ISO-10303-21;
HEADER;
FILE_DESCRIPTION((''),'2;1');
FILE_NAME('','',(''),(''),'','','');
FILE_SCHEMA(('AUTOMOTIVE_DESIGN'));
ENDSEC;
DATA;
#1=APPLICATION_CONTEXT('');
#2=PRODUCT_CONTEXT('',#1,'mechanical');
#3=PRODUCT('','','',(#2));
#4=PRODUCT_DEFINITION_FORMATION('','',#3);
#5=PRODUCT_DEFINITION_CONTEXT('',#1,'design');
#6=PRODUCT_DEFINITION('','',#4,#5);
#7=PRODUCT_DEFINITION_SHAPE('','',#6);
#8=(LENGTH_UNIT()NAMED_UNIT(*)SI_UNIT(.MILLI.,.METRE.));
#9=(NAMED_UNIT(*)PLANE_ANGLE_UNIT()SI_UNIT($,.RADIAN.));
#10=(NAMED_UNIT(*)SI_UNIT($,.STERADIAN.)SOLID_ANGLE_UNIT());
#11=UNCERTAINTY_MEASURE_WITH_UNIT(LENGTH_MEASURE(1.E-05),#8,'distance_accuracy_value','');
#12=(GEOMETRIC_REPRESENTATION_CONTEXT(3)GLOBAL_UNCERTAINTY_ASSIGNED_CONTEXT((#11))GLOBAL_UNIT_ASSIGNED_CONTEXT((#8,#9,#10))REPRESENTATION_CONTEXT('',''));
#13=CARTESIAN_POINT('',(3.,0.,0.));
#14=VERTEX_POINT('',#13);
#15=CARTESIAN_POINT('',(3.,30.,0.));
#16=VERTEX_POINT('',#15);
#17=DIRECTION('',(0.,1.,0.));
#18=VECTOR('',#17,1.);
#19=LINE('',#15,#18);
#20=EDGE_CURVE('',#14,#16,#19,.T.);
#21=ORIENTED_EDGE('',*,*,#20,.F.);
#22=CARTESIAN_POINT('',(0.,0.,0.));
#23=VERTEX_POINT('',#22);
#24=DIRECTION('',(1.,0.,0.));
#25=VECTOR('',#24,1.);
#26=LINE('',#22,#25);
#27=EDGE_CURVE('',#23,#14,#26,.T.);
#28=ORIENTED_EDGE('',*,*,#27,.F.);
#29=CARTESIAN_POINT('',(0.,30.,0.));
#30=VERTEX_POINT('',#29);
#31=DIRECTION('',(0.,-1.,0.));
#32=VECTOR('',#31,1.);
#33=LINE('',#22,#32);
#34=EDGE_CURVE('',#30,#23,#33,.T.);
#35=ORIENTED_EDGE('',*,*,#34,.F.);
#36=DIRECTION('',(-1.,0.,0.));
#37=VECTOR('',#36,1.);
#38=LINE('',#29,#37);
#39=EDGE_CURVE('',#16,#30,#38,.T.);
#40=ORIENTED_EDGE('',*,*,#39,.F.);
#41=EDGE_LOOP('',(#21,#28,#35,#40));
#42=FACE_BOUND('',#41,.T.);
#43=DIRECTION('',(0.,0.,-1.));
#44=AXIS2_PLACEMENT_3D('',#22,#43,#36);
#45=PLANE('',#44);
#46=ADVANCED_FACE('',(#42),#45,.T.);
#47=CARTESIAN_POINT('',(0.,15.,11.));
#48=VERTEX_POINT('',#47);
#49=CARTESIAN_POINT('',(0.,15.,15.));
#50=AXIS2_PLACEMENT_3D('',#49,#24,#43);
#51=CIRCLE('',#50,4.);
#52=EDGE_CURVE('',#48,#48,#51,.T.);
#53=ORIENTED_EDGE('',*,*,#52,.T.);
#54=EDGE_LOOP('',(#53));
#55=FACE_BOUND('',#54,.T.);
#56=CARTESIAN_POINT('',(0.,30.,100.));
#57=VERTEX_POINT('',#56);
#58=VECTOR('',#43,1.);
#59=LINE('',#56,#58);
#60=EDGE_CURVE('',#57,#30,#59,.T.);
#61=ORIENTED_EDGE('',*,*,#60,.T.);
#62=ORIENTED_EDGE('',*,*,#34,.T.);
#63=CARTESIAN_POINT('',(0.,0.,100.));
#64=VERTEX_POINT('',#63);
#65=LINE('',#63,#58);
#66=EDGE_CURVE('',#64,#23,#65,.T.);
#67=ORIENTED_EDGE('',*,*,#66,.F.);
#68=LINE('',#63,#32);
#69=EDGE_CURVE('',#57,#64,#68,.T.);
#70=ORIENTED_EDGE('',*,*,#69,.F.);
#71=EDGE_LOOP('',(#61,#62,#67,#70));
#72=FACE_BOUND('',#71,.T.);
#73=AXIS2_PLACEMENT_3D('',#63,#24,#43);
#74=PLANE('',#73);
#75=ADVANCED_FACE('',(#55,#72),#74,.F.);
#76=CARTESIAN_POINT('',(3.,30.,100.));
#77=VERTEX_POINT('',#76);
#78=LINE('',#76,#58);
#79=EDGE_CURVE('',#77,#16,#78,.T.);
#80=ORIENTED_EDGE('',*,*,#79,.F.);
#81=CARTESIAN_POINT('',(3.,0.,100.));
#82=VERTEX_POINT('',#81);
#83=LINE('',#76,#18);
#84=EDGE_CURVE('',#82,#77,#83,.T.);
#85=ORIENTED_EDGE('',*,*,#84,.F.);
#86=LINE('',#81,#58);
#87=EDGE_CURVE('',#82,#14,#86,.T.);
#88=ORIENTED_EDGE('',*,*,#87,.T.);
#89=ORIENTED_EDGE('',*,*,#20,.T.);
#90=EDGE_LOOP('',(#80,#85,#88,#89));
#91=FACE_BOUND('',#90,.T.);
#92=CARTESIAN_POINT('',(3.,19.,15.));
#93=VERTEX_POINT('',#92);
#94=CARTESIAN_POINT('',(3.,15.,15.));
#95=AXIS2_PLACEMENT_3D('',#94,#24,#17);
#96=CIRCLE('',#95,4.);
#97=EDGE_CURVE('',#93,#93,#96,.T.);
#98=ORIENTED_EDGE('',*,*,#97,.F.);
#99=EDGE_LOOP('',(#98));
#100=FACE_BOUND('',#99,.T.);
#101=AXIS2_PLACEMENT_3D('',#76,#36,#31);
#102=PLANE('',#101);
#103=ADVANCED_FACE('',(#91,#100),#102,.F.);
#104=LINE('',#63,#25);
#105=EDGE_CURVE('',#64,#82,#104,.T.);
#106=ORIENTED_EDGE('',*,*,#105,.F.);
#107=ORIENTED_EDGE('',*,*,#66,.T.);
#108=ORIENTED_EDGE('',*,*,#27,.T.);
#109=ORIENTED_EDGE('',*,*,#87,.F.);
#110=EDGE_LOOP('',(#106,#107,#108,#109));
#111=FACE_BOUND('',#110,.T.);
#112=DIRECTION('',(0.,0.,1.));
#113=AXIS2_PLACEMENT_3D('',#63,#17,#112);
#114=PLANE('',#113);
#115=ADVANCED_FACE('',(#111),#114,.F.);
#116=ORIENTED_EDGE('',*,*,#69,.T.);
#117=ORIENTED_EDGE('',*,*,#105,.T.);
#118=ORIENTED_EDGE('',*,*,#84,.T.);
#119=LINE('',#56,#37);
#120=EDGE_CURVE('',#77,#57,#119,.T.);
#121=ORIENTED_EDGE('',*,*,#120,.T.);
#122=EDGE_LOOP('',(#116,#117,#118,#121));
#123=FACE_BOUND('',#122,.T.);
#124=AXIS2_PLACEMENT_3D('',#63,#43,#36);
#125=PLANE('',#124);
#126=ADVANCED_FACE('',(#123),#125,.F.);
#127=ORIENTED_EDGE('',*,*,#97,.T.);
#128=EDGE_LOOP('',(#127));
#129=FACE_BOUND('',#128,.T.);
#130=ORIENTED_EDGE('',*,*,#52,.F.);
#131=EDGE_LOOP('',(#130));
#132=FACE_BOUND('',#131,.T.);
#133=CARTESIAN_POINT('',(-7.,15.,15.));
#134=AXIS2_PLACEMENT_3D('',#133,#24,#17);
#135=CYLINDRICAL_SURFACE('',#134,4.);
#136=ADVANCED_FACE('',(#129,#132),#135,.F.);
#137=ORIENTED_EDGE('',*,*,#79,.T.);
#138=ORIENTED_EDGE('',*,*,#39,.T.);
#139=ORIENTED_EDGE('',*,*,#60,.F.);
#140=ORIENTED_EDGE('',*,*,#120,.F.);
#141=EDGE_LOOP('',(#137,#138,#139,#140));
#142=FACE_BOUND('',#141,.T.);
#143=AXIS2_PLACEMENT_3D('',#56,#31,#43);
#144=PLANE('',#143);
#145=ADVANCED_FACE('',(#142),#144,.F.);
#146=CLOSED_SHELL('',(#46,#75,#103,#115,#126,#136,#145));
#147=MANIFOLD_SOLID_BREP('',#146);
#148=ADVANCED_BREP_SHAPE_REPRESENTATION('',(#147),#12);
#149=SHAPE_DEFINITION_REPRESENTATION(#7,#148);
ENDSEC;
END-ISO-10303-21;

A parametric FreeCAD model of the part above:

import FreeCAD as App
import Part
import Sketcher
from FreeCAD import Vector
Q = App.Units.Quantity

doc = App.newDocument("Part")
body = doc.addObject("PartDesign::Body", "Body")

# Sketch on XY plane
sketch1 = body.newObject("Sketcher::SketchObject", "Sketch")
sketch1.AttachmentSupport = (doc.getObject("XY_Plane"), [""])
sketch1.MapMode = "FlatFace"
sketch1.addGeometry([
    Part.LineSegment(Vector(0, 30, 0), Vector(0, 0, 0)),
    Part.LineSegment(Vector(0, 0, 0), Vector(3, 0, 0)),
    Part.LineSegment(Vector(3, 0, 0), Vector(3, 30, 0)),
    Part.LineSegment(Vector(3, 30, 0), Vector(0, 30, 0)),
], False)
sketch1.addConstraint([
    Sketcher.Constraint("Coincident", 0, 2, 1, 1),
    Sketcher.Constraint("Coincident", 1, 2, 2, 1),
    Sketcher.Constraint("Coincident", 2, 2, 3, 1),
    Sketcher.Constraint("Coincident", 3, 2, 0, 1),
    Sketcher.Constraint("Vertical", 0),
    Sketcher.Constraint("Horizontal", 1),
    Sketcher.Constraint("Vertical", 2),
    Sketcher.Constraint("Horizontal", 3),
    Sketcher.Constraint("Coincident", 0, 2, -1, 1),
    Sketcher.Constraint("DistanceX", 1, 1, 1, 2, Q("3 mm")),
    Sketcher.Constraint("DistanceY", 0, 2, 0, 1, Q("30 mm")),
])
pad1 = body.newObject("PartDesign::Pad", "Pad")
pad1.Profile = sketch1
pad1.Length = 100

# Sketch on YZ plane
sketch2 = body.newObject("Sketcher::SketchObject", "Sketch001")
sketch2.AttachmentSupport = (doc.getObject("YZ_Plane"), [""])
sketch2.MapMode = "FlatFace"
sketch2.AttachmentOffset = App.Placement(Vector(0, 0, 3), App.Rotation())
sketch2.addGeometry(Part.Circle(Vector(15, 15, 0), Vector(0, 0, 1), 4), False)
sketch2.addConstraint([
    Sketcher.Constraint("Diameter", 0, Q("8 mm")),
    Sketcher.Constraint("DistanceX", -1, 1, 0, 3, Q("15 mm")),
    Sketcher.Constraint("DistanceY", -1, 1, 0, 3, Q("15 mm")),
])
pocket1 = body.newObject("PartDesign::Pocket", "Pocket")
pocket1.Profile = sketch2
pocket1.Length = 10

doc.recompute()
